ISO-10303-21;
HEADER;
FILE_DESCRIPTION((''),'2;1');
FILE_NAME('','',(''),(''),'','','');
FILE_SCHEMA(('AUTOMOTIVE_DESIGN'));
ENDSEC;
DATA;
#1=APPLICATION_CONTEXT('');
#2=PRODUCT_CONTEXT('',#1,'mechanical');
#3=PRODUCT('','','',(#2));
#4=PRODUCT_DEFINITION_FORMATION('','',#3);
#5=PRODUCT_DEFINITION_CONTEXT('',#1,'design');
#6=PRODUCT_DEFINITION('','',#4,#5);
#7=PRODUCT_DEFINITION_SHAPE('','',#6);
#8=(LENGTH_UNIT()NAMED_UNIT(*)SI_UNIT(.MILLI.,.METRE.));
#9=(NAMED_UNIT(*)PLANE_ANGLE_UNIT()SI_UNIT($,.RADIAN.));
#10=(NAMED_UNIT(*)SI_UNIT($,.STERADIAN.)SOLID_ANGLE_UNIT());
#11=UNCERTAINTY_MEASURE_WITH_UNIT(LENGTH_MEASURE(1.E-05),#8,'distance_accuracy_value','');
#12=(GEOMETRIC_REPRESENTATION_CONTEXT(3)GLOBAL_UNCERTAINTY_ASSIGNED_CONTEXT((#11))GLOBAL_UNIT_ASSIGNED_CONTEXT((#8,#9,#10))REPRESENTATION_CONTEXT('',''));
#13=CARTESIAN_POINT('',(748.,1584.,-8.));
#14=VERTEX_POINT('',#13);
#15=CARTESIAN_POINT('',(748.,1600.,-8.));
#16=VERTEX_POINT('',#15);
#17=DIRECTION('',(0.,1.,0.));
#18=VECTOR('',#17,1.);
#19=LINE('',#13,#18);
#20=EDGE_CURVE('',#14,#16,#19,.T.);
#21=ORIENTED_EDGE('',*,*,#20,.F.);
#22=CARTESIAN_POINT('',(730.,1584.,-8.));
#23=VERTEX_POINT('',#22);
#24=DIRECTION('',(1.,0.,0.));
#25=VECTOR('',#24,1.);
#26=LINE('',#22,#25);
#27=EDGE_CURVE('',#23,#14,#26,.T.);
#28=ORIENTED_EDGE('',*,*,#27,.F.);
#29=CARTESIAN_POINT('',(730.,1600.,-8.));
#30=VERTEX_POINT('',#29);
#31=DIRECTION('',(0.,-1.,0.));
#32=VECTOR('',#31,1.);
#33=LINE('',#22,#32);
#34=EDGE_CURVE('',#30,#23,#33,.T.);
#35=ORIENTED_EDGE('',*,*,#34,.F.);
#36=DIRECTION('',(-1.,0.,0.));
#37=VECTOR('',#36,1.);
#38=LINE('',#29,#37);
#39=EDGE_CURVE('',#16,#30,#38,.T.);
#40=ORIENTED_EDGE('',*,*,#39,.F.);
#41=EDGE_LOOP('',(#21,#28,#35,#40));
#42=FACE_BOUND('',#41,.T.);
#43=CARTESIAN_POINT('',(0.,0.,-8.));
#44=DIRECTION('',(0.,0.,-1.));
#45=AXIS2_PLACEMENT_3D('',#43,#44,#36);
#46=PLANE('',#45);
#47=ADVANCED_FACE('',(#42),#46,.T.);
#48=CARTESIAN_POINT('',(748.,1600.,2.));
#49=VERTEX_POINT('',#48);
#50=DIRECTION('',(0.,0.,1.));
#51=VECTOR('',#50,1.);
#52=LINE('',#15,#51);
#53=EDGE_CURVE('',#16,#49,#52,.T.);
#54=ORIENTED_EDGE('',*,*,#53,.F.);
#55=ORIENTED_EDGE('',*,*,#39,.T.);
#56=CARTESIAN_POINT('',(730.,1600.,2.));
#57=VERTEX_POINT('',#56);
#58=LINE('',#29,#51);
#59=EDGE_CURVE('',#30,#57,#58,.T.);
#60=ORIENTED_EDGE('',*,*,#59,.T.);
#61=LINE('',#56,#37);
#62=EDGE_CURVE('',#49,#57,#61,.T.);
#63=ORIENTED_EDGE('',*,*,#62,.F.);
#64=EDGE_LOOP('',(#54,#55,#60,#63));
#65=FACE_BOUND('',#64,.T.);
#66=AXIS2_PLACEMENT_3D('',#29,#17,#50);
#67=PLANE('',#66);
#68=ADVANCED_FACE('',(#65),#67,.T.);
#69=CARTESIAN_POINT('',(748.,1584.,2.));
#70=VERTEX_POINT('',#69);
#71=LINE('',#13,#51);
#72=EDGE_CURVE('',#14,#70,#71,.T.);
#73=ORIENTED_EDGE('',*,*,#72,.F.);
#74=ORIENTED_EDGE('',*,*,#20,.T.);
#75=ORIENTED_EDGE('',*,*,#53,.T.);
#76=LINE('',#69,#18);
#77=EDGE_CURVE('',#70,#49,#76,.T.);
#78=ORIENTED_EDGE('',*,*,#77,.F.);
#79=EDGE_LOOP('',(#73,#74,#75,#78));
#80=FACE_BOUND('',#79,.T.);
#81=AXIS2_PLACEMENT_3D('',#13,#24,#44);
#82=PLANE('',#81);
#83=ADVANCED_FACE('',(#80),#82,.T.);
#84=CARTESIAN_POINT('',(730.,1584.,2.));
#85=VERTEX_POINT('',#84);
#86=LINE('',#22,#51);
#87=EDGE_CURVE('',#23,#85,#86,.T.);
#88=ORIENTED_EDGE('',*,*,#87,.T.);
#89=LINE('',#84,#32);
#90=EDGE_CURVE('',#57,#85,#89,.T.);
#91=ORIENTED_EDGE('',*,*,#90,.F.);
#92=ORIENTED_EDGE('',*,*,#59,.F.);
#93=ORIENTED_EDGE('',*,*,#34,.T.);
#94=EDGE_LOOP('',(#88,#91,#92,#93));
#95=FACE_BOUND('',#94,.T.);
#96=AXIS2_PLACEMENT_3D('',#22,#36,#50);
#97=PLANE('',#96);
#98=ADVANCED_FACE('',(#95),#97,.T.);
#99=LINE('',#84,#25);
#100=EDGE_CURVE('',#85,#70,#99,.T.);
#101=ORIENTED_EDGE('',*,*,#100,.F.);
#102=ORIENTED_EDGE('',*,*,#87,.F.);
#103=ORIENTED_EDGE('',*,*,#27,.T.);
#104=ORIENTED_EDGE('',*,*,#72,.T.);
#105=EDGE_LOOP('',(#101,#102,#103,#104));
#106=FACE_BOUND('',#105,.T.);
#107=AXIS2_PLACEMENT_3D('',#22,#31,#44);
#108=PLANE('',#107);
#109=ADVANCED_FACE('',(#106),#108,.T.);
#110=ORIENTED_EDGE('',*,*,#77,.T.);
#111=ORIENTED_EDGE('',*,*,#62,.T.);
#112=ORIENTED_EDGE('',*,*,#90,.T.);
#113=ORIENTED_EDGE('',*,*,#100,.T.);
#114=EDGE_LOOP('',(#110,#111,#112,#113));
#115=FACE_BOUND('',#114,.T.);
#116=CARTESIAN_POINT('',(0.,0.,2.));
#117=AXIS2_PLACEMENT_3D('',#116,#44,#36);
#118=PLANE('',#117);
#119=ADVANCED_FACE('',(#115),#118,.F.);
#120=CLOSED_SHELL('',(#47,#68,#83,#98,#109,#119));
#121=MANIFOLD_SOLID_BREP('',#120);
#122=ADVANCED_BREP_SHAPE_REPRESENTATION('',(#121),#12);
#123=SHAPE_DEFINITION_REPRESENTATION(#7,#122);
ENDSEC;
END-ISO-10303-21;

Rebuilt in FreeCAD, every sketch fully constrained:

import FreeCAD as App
import Part
import Sketcher
from FreeCAD import Vector
Q = App.Units.Quantity


def add_polygon(sketch, points):
    """Adds a closed chain of lines whose ends are joined by coincident constraints."""
    first, n = sketch.GeometryCount, len(points)
    for a, b in zip(points, points[1:] + points[:1]):
        sketch.addGeometry(Part.LineSegment(App.Vector(*a, 0), App.Vector(*b, 0)), False)
    for i in range(n):
        sketch.addConstraint(Sketcher.Constraint("Coincident", first + i, 2, first + (i + 1) % n, 1))

doc = App.newDocument("Part")
body = doc.addObject("PartDesign::Body", "Body")

# Sketch on XY plane
sketch1 = body.newObject("Sketcher::SketchObject", "Sketch")
sketch1.AttachmentSupport = (doc.getObject("XY_Plane"), [""])
sketch1.MapMode = "FlatFace"
sketch1.AttachmentOffset = App.Placement(Vector(0, 0, 2), App.Rotation())
add_polygon(sketch1, [(730, 1600), (730, 1584), (748, 1584), (748, 1600)])  # lines 0-3
sketch1.addConstraint([
    Sketcher.Constraint("Vertical", 0),
    Sketcher.Constraint("Horizontal", 1),
    Sketcher.Constraint("Vertical", 2),
    Sketcher.Constraint("Horizontal", 3),
    Sketcher.Constraint("DistanceX", 1, 1, 1, 2, Q("18 mm")),
    Sketcher.Constraint("DistanceY", 0, 2, 0, 1, Q("16 mm")),
    Sketcher.Constraint("DistanceX", -1, 1, 0, 2, Q("730 mm")),
    Sketcher.Constraint("DistanceY", -1, 1, 0, 2, Q("1584 mm")),
])
pad1 = body.newObject("PartDesign::Pad", "Pad")
pad1.Profile = sketch1
pad1.Length = 10
pad1.Reversed = True

doc.recompute()
